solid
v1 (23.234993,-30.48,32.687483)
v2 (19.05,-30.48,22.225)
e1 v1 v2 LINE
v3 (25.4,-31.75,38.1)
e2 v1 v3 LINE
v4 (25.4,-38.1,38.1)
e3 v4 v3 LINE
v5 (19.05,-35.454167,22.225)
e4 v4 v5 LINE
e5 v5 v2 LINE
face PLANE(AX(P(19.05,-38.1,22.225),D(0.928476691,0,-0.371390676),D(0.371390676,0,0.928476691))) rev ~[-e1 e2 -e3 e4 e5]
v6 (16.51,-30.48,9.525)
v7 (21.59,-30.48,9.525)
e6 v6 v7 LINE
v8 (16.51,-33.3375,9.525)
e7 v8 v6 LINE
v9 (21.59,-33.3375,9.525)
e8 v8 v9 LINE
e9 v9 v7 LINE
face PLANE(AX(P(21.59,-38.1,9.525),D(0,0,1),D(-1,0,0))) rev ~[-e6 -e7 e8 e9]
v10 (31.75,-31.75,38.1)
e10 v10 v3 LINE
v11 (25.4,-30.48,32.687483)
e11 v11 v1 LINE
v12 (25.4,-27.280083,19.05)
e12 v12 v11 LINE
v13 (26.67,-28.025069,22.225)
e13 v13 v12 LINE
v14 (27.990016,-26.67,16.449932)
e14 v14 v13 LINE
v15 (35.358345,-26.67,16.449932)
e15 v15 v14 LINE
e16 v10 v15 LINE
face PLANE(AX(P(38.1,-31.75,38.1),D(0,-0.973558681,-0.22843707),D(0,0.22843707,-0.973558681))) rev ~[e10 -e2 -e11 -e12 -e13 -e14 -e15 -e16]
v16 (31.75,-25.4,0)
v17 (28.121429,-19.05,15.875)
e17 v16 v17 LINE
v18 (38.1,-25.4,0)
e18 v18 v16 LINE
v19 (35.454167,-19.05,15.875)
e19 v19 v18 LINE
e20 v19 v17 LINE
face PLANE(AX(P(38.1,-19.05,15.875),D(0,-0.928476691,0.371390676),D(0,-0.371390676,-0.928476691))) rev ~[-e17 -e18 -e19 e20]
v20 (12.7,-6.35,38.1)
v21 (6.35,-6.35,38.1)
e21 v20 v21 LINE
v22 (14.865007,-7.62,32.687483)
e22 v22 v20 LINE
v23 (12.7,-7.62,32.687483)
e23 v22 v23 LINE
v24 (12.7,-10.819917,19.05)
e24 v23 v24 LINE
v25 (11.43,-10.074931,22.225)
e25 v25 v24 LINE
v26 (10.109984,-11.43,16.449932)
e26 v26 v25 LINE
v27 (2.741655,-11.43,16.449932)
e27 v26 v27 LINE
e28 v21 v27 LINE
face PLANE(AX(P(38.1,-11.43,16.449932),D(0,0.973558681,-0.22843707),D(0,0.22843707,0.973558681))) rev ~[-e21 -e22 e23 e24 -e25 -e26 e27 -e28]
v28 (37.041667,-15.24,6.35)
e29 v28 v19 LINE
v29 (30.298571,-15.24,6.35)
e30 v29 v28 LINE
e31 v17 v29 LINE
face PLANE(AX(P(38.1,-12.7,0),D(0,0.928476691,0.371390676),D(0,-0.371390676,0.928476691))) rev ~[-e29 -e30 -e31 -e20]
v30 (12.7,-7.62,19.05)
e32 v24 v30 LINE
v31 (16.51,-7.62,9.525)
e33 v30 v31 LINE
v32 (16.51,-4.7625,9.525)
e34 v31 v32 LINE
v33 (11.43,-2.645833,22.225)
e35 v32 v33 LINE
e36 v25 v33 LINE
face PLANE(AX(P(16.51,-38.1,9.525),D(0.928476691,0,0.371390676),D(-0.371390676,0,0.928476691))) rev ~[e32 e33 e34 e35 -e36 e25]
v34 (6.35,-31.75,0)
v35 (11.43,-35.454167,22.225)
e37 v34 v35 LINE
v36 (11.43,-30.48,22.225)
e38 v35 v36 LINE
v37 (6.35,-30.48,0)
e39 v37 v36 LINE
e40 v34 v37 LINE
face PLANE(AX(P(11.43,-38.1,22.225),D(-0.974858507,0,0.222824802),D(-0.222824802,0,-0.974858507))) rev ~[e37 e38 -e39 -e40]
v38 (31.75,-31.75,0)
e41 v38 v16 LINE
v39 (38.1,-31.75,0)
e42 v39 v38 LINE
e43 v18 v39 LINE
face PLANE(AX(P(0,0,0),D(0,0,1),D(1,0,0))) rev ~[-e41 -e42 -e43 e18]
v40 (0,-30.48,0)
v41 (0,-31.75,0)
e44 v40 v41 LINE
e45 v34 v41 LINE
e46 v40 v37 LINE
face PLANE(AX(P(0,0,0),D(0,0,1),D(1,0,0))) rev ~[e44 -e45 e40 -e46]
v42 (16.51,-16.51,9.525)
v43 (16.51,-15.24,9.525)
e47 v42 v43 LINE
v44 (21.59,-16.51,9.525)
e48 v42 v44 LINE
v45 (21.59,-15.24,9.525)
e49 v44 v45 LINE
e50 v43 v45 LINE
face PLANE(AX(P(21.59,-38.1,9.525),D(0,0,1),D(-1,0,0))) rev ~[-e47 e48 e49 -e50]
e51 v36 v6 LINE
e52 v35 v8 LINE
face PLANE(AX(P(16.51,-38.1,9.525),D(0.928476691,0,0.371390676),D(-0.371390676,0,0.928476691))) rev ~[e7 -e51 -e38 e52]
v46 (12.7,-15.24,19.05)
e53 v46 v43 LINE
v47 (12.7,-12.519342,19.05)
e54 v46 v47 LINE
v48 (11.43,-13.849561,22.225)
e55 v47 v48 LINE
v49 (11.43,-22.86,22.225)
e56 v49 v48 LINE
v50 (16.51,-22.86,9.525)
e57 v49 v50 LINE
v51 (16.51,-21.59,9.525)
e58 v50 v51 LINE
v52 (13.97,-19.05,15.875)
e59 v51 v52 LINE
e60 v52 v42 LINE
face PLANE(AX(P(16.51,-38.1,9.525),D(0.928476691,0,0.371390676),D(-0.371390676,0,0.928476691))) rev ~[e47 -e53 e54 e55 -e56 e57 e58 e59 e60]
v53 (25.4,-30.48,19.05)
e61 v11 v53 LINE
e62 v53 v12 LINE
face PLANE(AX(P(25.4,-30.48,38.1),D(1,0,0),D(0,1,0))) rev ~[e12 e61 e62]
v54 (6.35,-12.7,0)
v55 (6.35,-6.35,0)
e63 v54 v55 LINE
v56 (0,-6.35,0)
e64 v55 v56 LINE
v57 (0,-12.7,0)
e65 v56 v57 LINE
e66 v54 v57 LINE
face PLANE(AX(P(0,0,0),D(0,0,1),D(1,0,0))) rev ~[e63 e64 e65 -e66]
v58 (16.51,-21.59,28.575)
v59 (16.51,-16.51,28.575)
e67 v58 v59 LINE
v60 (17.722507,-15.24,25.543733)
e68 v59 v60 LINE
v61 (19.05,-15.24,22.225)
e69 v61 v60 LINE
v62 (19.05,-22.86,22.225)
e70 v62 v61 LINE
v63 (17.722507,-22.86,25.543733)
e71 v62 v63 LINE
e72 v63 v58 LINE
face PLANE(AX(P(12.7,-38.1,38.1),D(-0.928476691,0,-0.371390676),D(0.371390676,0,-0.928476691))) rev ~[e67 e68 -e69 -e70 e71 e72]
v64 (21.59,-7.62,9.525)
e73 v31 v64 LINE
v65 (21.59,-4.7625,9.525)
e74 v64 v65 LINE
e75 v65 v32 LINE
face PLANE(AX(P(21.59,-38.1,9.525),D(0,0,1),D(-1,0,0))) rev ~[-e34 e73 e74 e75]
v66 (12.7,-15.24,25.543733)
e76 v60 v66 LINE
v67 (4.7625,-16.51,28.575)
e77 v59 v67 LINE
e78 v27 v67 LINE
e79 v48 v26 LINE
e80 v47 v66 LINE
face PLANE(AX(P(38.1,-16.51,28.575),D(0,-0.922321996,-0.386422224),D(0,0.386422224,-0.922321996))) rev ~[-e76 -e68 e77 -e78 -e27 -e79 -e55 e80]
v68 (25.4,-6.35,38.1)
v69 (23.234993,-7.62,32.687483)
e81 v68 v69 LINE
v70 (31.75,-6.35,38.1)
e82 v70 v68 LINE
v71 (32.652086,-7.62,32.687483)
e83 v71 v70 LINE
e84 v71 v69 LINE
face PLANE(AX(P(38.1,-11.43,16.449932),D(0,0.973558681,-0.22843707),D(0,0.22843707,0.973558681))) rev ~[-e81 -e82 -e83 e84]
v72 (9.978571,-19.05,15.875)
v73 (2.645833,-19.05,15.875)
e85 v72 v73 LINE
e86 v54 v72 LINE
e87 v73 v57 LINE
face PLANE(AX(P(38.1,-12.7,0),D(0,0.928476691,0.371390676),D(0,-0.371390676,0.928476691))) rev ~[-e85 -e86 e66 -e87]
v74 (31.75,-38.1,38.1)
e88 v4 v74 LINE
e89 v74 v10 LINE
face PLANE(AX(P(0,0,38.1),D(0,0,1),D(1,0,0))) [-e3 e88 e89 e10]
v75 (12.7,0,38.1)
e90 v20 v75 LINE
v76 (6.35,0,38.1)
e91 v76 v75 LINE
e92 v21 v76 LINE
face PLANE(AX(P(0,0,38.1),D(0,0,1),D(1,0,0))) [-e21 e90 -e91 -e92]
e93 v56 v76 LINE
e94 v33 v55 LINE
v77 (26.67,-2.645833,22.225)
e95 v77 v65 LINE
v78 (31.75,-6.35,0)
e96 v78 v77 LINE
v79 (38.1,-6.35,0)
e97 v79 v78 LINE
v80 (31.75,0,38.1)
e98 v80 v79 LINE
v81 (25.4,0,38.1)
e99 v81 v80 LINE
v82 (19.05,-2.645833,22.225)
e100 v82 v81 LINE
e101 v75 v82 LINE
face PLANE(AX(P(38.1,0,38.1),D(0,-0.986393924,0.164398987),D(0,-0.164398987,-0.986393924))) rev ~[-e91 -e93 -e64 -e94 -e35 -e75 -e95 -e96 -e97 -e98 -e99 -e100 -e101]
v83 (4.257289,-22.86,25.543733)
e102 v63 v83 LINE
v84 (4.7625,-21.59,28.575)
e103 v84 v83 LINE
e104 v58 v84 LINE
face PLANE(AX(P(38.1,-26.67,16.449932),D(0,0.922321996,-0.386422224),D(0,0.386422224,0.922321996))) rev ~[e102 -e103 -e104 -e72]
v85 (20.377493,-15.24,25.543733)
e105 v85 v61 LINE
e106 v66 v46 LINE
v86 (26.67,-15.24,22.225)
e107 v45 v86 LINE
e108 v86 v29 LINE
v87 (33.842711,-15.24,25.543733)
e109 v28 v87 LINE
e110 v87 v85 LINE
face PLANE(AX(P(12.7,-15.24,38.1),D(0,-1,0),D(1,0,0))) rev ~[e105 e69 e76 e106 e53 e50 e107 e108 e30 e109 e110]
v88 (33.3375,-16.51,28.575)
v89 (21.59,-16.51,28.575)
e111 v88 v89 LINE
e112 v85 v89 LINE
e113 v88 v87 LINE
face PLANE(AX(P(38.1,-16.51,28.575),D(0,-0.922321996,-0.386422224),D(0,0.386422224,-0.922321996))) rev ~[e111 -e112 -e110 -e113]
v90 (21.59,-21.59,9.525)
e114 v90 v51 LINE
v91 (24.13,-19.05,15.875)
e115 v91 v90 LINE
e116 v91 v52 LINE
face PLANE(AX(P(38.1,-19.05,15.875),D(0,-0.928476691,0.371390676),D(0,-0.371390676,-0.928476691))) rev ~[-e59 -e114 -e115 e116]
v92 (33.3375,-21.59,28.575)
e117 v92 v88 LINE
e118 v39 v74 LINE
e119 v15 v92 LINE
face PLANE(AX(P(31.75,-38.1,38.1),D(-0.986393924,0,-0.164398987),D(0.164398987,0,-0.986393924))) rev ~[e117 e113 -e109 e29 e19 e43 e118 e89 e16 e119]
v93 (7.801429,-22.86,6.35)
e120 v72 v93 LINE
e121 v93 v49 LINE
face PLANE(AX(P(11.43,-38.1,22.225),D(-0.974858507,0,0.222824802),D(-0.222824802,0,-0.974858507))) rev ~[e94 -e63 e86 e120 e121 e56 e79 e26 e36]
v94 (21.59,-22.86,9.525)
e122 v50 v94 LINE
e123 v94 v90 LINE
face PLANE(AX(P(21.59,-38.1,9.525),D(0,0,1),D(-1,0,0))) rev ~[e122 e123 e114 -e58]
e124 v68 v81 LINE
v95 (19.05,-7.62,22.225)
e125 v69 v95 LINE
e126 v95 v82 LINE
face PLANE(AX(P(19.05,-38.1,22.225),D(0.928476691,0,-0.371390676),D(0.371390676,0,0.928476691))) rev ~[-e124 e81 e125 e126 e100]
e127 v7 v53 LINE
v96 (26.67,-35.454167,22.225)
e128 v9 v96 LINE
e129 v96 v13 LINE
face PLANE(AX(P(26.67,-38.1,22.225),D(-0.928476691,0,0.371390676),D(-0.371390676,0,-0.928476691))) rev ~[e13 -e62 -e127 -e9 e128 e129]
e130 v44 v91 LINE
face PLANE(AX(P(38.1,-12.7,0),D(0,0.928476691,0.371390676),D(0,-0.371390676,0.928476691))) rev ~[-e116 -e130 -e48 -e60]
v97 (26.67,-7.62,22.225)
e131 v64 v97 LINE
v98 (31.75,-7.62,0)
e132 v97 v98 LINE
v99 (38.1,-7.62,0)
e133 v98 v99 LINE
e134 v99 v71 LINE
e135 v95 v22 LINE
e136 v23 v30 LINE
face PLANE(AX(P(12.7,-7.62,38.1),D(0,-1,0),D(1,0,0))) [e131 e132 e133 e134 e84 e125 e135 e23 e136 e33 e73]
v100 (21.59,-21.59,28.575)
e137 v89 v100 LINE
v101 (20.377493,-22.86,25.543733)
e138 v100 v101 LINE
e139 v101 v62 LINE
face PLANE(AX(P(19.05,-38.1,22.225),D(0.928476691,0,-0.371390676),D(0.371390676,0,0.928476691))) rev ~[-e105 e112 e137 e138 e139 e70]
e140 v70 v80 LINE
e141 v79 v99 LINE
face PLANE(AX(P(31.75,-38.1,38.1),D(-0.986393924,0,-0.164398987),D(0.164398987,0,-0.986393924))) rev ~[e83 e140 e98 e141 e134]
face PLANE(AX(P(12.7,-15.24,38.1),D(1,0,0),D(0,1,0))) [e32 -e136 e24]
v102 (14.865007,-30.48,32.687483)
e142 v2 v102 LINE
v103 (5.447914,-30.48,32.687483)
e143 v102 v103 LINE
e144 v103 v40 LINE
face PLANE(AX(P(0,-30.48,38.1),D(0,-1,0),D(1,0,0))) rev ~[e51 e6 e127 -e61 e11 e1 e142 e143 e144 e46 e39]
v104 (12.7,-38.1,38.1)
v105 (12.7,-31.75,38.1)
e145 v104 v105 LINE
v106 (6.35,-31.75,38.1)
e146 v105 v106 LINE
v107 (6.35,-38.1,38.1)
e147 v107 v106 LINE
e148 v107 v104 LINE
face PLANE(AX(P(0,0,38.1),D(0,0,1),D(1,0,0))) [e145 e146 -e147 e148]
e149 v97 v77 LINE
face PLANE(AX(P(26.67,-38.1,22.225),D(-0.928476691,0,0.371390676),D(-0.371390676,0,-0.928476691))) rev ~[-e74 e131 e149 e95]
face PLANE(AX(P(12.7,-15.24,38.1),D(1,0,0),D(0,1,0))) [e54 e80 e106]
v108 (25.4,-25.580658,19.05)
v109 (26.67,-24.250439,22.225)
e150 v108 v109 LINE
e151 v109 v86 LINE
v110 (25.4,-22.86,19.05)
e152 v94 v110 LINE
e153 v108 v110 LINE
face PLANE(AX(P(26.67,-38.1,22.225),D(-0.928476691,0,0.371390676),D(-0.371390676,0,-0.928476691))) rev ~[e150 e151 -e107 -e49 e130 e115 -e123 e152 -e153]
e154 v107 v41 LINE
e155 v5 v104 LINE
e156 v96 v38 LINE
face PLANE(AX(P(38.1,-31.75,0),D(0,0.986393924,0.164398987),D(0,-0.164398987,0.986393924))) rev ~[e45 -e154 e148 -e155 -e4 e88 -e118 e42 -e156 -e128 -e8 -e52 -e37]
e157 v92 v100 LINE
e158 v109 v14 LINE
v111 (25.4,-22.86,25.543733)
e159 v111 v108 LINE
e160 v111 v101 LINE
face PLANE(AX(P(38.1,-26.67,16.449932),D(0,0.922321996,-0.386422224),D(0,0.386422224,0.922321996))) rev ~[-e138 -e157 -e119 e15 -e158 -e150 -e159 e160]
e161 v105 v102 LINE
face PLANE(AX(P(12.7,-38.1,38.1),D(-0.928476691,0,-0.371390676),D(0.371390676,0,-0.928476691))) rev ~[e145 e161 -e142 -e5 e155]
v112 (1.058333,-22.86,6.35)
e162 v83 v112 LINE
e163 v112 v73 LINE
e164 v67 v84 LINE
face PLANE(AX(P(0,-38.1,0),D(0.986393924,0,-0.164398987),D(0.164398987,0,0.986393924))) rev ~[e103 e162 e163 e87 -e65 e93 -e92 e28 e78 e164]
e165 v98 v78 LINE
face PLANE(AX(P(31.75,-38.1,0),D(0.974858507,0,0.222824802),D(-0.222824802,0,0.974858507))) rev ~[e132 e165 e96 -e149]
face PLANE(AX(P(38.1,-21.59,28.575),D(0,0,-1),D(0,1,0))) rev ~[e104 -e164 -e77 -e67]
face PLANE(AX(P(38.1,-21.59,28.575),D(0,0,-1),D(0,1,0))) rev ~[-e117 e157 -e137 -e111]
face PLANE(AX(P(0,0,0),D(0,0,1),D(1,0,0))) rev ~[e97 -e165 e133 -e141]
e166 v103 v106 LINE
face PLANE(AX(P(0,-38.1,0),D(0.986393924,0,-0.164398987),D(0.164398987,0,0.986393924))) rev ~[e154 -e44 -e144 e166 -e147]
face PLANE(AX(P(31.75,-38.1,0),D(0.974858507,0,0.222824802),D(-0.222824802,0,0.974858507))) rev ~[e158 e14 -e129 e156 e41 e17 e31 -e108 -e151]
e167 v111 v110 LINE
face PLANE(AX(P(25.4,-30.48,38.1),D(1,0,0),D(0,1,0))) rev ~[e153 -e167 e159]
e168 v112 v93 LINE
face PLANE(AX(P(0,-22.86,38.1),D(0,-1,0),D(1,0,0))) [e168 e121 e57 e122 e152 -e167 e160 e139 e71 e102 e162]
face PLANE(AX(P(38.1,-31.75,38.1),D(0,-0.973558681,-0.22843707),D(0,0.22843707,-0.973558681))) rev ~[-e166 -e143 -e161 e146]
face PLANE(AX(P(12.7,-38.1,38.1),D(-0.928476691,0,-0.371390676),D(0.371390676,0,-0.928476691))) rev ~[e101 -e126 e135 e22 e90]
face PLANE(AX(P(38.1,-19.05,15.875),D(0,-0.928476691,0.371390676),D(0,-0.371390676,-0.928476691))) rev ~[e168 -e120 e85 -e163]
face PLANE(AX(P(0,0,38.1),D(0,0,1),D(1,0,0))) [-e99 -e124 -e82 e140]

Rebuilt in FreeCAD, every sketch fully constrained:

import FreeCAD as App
import Part
import Sketcher

V = App.Vector
Q = App.Units.Quantity

doc = App.newDocument("Part")
body = doc.addObject("PartDesign::Body", "Body")

# Sketch on XZ plane
sketch1 = body.newObject("Sketcher::SketchObject", "Sketch")
sketch1.AttachmentSupport = (doc.getObject("XZ_Plane"), [""])
sketch1.MapMode = "FlatFace"
sketch1.addGeometry([
    Part.LineSegment(V(0, 38, 0), V(0, 0, 0)),
    Part.LineSegment(V(0, 0, 0), V(38, 0, 0)),
    Part.LineSegment(V(38, 0, 0), V(38, 38, 0)),
    Part.LineSegment(V(38, 38, 0), V(0, 38, 0)),
], False)
sketch1.addConstraint([
    Sketcher.Constraint("Coincident", 0, 2, 1, 1),
    Sketcher.Constraint("Coincident", 1, 2, 2, 1),
    Sketcher.Constraint("Coincident", 2, 2, 3, 1),
    Sketcher.Constraint("Coincident", 3, 2, 0, 1),
    Sketcher.Constraint("Vertical", 0),
    Sketcher.Constraint("Horizontal", 1),
    Sketcher.Constraint("Vertical", 2),
    Sketcher.Constraint("Horizontal", 3),
    Sketcher.Constraint("Coincident", 0, 2, -1, 1),
    Sketcher.Constraint("Equal", 3, 0),
    Sketcher.Constraint("DistanceX", 1, 1, 1, 2, Q("1.5 in")),
])
pad1 = body.newObject("PartDesign::Pad", "Pad")
pad1.Profile = sketch1
pad1.Length = Q("1.5 in")

# Sketch on YZ plane
sketch2 = body.newObject("Sketcher::SketchObject", "Sketch001")
sketch2.AttachmentSupport = (doc.getObject("YZ_Plane"), [""])
sketch2.MapMode = "FlatFace"
sketch2.AttachmentOffset = App.Placement(V(0, 0, 1.5 * 25.4), App.Rotation())
sketch2.addGeometry([
    Part.LineSegment(V(-11, 16, 0), V(-6, 38, 0)),  # 0
    Part.LineSegment(V(-6, 38, 0), V(-32, 38, 0)),  # 1
    Part.LineSegment(V(-32, 38, 0), V(-27, 16, 0)),  # 2
    Part.LineSegment(V(-27, 16, 0), V(-22, 29, 0)),  # 3
    Part.LineSegment(V(-22, 29, 0), V(-17, 29, 0)),  # 4
    Part.LineSegment(V(-17, 29, 0), V(-11, 16, 0)),  # 5
    Part.LineSegment(V(-6, 0, 0), V(0, 0, 0)),  # 6
    Part.LineSegment(V(0, 0, 0), V(0, 38, 0)),  # 7
    Part.LineSegment(V(0, 38, 0), V(-6, 0, 0)),  # 8
    Part.LineSegment(V(-13, 0, 0), V(-19, 16, 0)),  # 9
    Part.LineSegment(V(-19, 16, 0), V(-25, 0, 0)),  # 10
    Part.LineSegment(V(-25, 0, 0), V(-13, 0, 0)),  # 11
    Part.LineSegment(V(-32, 0, 0), V(-38, 38, 0)),  # 12
    Part.LineSegment(V(-38, 38, 0), V(-38, 0, 0)),  # 13
    Part.LineSegment(V(-38, 0, 0), V(-32, 0, 0)),  # 14
], False)
sketch2.addConstraint([
    Sketcher.Constraint("Coincident", 0, 2, 1, 1),
    Sketcher.Constraint("Coincident", 1, 2, 2, 1),
    Sketcher.Constraint("Coincident", 2, 2, 3, 1),
    Sketcher.Constraint("Coincident", 3, 2, 4, 1),
    Sketcher.Constraint("Coincident", 4, 2, 5, 1),
    Sketcher.Constraint("Coincident", 5, 2, 0, 1),
    Sketcher.Constraint("Coincident", 6, 2, 7, 1),
    Sketcher.Constraint("Coincident", 7, 2, 8, 1),
    Sketcher.Constraint("Coincident", 8, 2, 6, 1),
    Sketcher.Constraint("Coincident", 9, 2, 10, 1),
    Sketcher.Constraint("Coincident", 10, 2, 11, 1),
    Sketcher.Constraint("Coincident", 11, 2, 9, 1),
    Sketcher.Constraint("Coincident", 12, 2, 13, 1),
    Sketcher.Constraint("Coincident", 13, 2, 14, 1),
    Sketcher.Constraint("Coincident", 14, 2, 12, 1),
    Sketcher.Constraint("Horizontal", 1),
    Sketcher.Constraint("Horizontal", 4),
    Sketcher.Constraint("Horizontal", 6),
    Sketcher.Constraint("Vertical", 7),
    Sketcher.Constraint("Horizontal", 11),
    Sketcher.Constraint("Vertical", 13),
    Sketcher.Constraint("Horizontal", 14),
    Sketcher.Constraint("Coincident", 6, 2, -1, 1),
    Sketcher.Constraint("PointOnObject", 10, 2, -1),
    Sketcher.Constraint("PointOnObject", 13, 2, -1),
    Sketcher.Constraint("Horizontal", 2, 2, 5, 2),
    Sketcher.Constraint("Horizontal", 1, 2, 7, 2),
    Sketcher.Constraint("Horizontal", 7, 2, 12, 2),
    Sketcher.Constraint("Vertical", 0, 2, 8, 2),
    Sketcher.Constraint("Vertical", 1, 2, 14, 2),
    Sketcher.Constraint("Equal", 6, 14),
    Sketcher.Constraint("Equal", 0, 2),
    Sketcher.Constraint("Equal", 3, 5),
    Sketcher.Constraint("Equal", 9, 10),
    Sketcher.Constraint("DistanceX", 1, 2, 1, 1, Q("1 in")),
    Sketcher.Constraint("DistanceX", 4, 1, 4, 2, Q("0.2 in")),
    Sketcher.Constraint("DistanceX", 11, 1, 11, 2, Q("0.5 in")),
    Sketcher.Constraint("DistanceY", 7, 1, 7, 2, Q("1.5 in")),
    Sketcher.Constraint("DistanceX", 10, 2, -1, 1, Q("1 in")),
    Sketcher.Constraint("DistanceX", 13, 2, 11, 2, Q("1 in")),
    Sketcher.Constraint("DistanceX", 1, 2, 2, 2, Q("0.2 in")),
    Sketcher.Constraint("DistanceY", 9, 2, 3, 2, Q("0.5 in")),
    Sketcher.Constraint("DistanceY", -1, 1, 3, 2, Q("1.125 in")),
    Sketcher.Constraint("Distance", 0, Q("22.238072 mm")),
])
pocket1 = body.newObject("PartDesign::Pocket", "Pocket")
pocket1.Profile = sketch2
pocket1.Length = Q("1.5 in")

# Sketch on XZ plane
sketch3 = body.newObject("Sketcher::SketchObject", "Sketch002")
sketch3.AttachmentSupport = (doc.getObject("XZ_Plane"), [""])
sketch3.MapMode = "FlatFace"
sketch3.AttachmentOffset = App.Placement(V(0, 0, 1.5 * 25.4), App.Rotation())
sketch3.addGeometry([
    Part.LineSegment(V(11, 22, 0), V(6, 0, 0)),  # 0
    Part.LineSegment(V(6, 0, 0), V(32, 0, 0)),  # 1
    Part.LineSegment(V(32, 0, 0), V(27, 22, 0)),  # 2
    Part.LineSegment(V(27, 22, 0), V(22, 10, 0)),  # 3
    Part.LineSegment(V(22, 10, 0), V(17, 10, 0)),  # 4
    Part.LineSegment(V(17, 10, 0), V(11, 22, 0)),  # 5
    Part.LineSegment(V(25, 38, 0), V(13, 38, 0)),  # 6
    Part.LineSegment(V(13, 38, 0), V(19, 22, 0)),  # 7
    Part.LineSegment(V(19, 22, 0), V(25, 38, 0)),  # 8
    Part.LineSegment(V(32, 38, 0), V(38, 0, 0)),  # 9
    Part.LineSegment(V(38, 0, 0), V(38, 38, 0)),  # 10
    Part.LineSegment(V(38, 38, 0), V(32, 38, 0)),  # 11
    Part.LineSegment(V(0, 38, 0), V(0, 0, 0)),  # 12
    Part.LineSegment(V(0, 0, 0), V(6, 38, 0)),  # 13
    Part.LineSegment(V(6, 38, 0), V(0, 38, 0)),  # 14
], False)
sketch3.addConstraint([
    Sketcher.Constraint("Coincident", 0, 2, 1, 1),
    Sketcher.Constraint("Coincident", 1, 2, 2, 1),
    Sketcher.Constraint("Coincident", 2, 2, 3, 1),
    Sketcher.Constraint("Coincident", 3, 2, 4, 1),
    Sketcher.Constraint("Coincident", 4, 2, 5, 1),
    Sketcher.Constraint("Coincident", 5, 2, 0, 1),
    Sketcher.Constraint("Coincident", 6, 2, 7, 1),
    Sketcher.Constraint("Coincident", 7, 2, 8, 1),
    Sketcher.Constraint("Coincident", 8, 2, 6, 1),
    Sketcher.Constraint("Coincident", 9, 2, 10, 1),
    Sketcher.Constraint("Coincident", 10, 2, 11, 1),
    Sketcher.Constraint("Coincident", 11, 2, 9, 1),
    Sketcher.Constraint("Coincident", 12, 2, 13, 1),
    Sketcher.Constraint("Coincident", 13, 2, 14, 1),
    Sketcher.Constraint("Coincident", 14, 2, 12, 1),
    Sketcher.Constraint("Horizontal", 1),
    Sketcher.Constraint("Horizontal", 4),
    Sketcher.Constraint("Horizontal", 6),
    Sketcher.Constraint("Vertical", 10),
    Sketcher.Constraint("Horizontal", 11),
    Sketcher.Constraint("Vertical", 12),
    Sketcher.Constraint("Horizontal", 14),
    Sketcher.Constraint("Coincident", 12, 2, -1, 1),
    Sketcher.Constraint("PointOnObject", 0, 2, -1),
    Sketcher.Constraint("PointOnObject", 9, 2, -1),
    Sketcher.Constraint("Parallel", 5, 7),
    Sketcher.Constraint("Parallel", 3, 8),
    Sketcher.Constraint("Horizontal", 2, 2, 5, 2),
    Sketcher.Constraint("Horizontal", 5, 2, 7, 2),
    Sketcher.Constraint("Horizontal", 8, 2, 10, 2),
    Sketcher.Constraint("Horizontal", 11, 2, 13, 2),
    Sketcher.Constraint("Vertical", 1, 2, 11, 2),
    Sketcher.Constraint("Vertical", 0, 2, 13, 2),
    Sketcher.Constraint("Equal", 11, 14),
    Sketcher.Constraint("Equal", 0, 2),
    Sketcher.Constraint("Equal", 3, 5),
    Sketcher.Constraint("DistanceX", 1, 1, 1, 2, Q("1 in")),
    Sketcher.Constraint("DistanceX", 4, 2, 4, 1, Q("0.2 in")),
    Sketcher.Constraint("DistanceX", 6, 2, 6, 1, Q("0.5 in")),
    Sketcher.Constraint("DistanceY", 10, 1, 10, 2, Q("1.5 in")),
    Sketcher.Constraint("DistanceX", -1, 1, 8, 2, Q("1 in")),
    Sketcher.Constraint("DistanceX", 6, 2, 10, 2, Q("1 in")),
    Sketcher.Constraint("DistanceX", 2, 2, 1, 2, Q("0.2 in")),
    Sketcher.Constraint("DistanceY", 3, 2, 2, 2, Q("0.5 in")),
])
pocket2 = body.newObject("PartDesign::Pocket", "Pocket001")
pocket2.Profile = sketch3
pocket2.Length = Q("1.5 in")

# Sketch on XY plane
sketch4 = body.newObject("Sketcher::SketchObject", "Sketch003")
sketch4.AttachmentSupport = (doc.getObject("XY_Plane"), [""])
sketch4.MapMode = "FlatFace"
sketch4.AttachmentOffset = App.Placement(V(0, 0, 1.5 * 25.4), App.Rotation())
sketch4.addGeometry([
    Part.LineSegment(V(0, -23, 0), V(0, -30, 0)),  # 0
    Part.LineSegment(V(0, -30, 0), V(25, -30, 0)),  # 1
    Part.LineSegment(V(25, -30, 0), V(25, -23, 0)),  # 2
    Part.LineSegment(V(25, -23, 0), V(0, -23, 0)),  # 3
    Part.LineSegment(V(13, -8, 0), V(13, -15, 0)),  # 4
    Part.LineSegment(V(13, -15, 0), V(38, -15, 0)),  # 5
    Part.LineSegment(V(38, -15, 0), V(38, -8, 0)),  # 6
    Part.LineSegment(V(38, -8, 0), V(13, -8, 0)),  # 7
], False)
sketch4.addConstraint([
    Sketcher.Constraint("Coincident", 0, 2, 1, 1),
    Sketcher.Constraint("Coincident", 1, 2, 2, 1),
    Sketcher.Constraint("Coincident", 2, 2, 3, 1),
    Sketcher.Constraint("Coincident", 3, 2, 0, 1),
    Sketcher.Constraint("Coincident", 4, 2, 5, 1),
    Sketcher.Constraint("Coincident", 5, 2, 6, 1),
    Sketcher.Constraint("Coincident", 6, 2, 7, 1),
    Sketcher.Constraint("Coincident", 7, 2, 4, 1),
    Sketcher.Constraint("Vertical", 0),
    Sketcher.Constraint("Horizontal", 1),
    Sketcher.Constraint("Vertical", 2),
    Sketcher.Constraint("Horizontal", 3),
    Sketcher.Constraint("Vertical", 4),
    Sketcher.Constraint("Horizontal", 5),
    Sketcher.Constraint("Vertical", 6),
    Sketcher.Constraint("Horizontal", 7),
    Sketcher.Constraint("PointOnObject", 0, 2, -2),
    Sketcher.Constraint("Equal", 3, 5),
    Sketcher.Constraint("Equal", 2, 4),
    Sketcher.Constraint("DistanceX", 1, 1, 1, 2, Q("1 in")),
    Sketcher.Constraint("DistanceY", 0, 2, 0, 1, Q("0.3 in")),
    Sketcher.Constraint("DistanceY", 0, 2, -1, 1, Q("1.2 in")),
    Sketcher.Constraint("DistanceX", -1, 1, 4, 2, Q("0.5 in")),
    Sketcher.Constraint("DistanceY", 4, 2, -1, 1, Q("0.6 in")),
])
pocket3 = body.newObject("PartDesign::Pocket", "Pocket002")
pocket3.Profile = sketch4
pocket3.Length = Q("1.5 in")

doc.recompute()
